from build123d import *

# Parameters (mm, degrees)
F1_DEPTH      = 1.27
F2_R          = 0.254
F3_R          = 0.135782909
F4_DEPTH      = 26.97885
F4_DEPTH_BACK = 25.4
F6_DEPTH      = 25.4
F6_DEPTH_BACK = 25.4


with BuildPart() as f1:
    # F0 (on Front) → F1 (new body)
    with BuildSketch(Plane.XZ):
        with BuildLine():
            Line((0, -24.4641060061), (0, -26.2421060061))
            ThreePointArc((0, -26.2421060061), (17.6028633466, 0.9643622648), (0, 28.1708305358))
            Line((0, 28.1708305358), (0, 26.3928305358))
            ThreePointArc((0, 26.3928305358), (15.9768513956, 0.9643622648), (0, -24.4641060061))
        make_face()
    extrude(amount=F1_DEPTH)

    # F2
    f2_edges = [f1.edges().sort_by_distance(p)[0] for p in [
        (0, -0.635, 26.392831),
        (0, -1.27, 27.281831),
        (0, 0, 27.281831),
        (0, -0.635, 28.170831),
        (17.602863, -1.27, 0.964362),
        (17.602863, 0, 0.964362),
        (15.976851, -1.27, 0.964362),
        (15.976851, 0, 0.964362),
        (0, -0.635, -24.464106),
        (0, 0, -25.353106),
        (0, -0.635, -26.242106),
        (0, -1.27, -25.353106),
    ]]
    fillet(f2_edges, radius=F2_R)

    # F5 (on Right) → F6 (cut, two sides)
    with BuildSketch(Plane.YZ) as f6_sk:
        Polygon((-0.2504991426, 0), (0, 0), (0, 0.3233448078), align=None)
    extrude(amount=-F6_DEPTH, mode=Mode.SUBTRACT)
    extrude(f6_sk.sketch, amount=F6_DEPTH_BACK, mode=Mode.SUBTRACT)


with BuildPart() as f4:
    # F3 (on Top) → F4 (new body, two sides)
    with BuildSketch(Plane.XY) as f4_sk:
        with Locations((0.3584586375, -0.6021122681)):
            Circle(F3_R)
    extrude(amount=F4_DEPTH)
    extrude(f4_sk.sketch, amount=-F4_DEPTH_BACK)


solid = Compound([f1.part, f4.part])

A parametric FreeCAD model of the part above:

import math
import FreeCAD as App
import Part
import Sketcher

V = App.Vector
Q = App.Units.Quantity


def add_polygon(sketch, points):
    """Adds a closed chain of lines whose ends are joined by coincident constraints."""
    first, n = sketch.GeometryCount, len(points)
    for a, b in zip(points, points[1:] + points[:1]):
        sketch.addGeometry(Part.LineSegment(App.Vector(*a, 0), App.Vector(*b, 0)), False)
    for i in range(n):
        sketch.addConstraint(Sketcher.Constraint("Coincident", first + i, 2, first + (i + 1) % n, 1))

doc = App.newDocument("Part")
body = doc.addObject("PartDesign::Body", "Body")

# Sketch on XZ plane
sketch1 = body.newObject("Sketcher::SketchObject", "Sketch")
sketch1.AttachmentSupport = (doc.getObject("XZ_Plane"), [""])
sketch1.MapMode = "FlatFace"
sketch1.addGeometry([
    Part.LineSegment(V(0, -24.5, 0), V(0, -26.2, 0)),
    Part.ArcOfCircle(Part.Circle(V(-12.2, 1, 0), V(0, 0, 1), 29.8), math.radians(-66), math.radians(66)),
    Part.LineSegment(V(0, 28.2, 0), V(0, 26.4, 0)),
    Part.ArcOfCircle(Part.Circle(V(-12.2, 1, 0), V(0, 0, 1), 28.2), math.radians(-64), math.radians(64)),
], False)
sketch1.addConstraint([
    Sketcher.Constraint("Coincident", 0, 2, 1, 1),
    Sketcher.Constraint("Coincident", 1, 2, 2, 1),
    Sketcher.Constraint("Coincident", 2, 2, 3, 2),
    Sketcher.Constraint("Coincident", 3, 1, 0, 1),
    Sketcher.Constraint("Vertical", 0),
    Sketcher.Constraint("Vertical", 2),
    Sketcher.Constraint("PointOnObject", 0, 2, -2),
    Sketcher.Constraint("PointOnObject", 1, 2, -2),
    Sketcher.Constraint("Horizontal", 1, 3, 3, 3),
    Sketcher.Constraint("DistanceY", 0, 2, 0, 1, Q("0.07 in")),
    Sketcher.Constraint("Radius", 1, 29.826191),
    Sketcher.Constraint("Radius", 3, 28.224171),
    Sketcher.Constraint("DistanceX", 3, 3, -1, 1, 12.24732),
    Sketcher.Constraint("DistanceY", -1, 1, 1, 2, 28.170831),
])
pad1 = body.newObject("PartDesign::Pad", "Pad")
pad1.Profile = sketch1
pad1.Length = Q("0.05 in")
doc.recompute()

fillet = body.newObject("PartDesign::Fillet", "Fillet")
fillet.Base = (pad1, ["Edge1"])
fillet.UseAllEdges = True
fillet.Radius = Q("0.01 in")

# Sketch on YZ plane
sketch2 = body.newObject("Sketcher::SketchObject", "Sketch001")
sketch2.AttachmentSupport = (doc.getObject("YZ_Plane"), [""])
sketch2.MapMode = "FlatFace"
add_polygon(sketch2, [(-0.25, 0), (0, 0), (0, 0.32)])  # lines 0-2
sketch2.addConstraint([
    Sketcher.Constraint("Horizontal", 0),
    Sketcher.Constraint("Vertical", 1),
    Sketcher.Constraint("Coincident", 0, 2, -1, 1),
    Sketcher.Constraint("DistanceX", 0, 1, 0, 2, 0.250499),
    Sketcher.Constraint("DistanceY", 1, 1, 1, 2, 0.323345),
])
pocket1 = body.newObject("PartDesign::Pocket", "Pocket")
pocket1.Profile = sketch2
pocket1.Type = "ThroughAll"
pocket1.Midplane = True
body2 = doc.addObject("PartDesign::Body", "Body001")

# Sketch on XY plane
sketch3 = body2.newObject("Sketcher::SketchObject", "Sketch002")
sketch3.AttachmentSupport = (doc.getObject("XY_Plane001"), [""])
sketch3.MapMode = "FlatFace"
sketch3.addGeometry(Part.Circle(V(0.36, -0.6, 0), V(0, 0, 1), 0.14), False)
sketch3.addConstraint([
    Sketcher.Constraint("Diameter", 0, 0.271566),
    Sketcher.Constraint("DistanceX", -1, 1, 0, 3, 0.358459),
    Sketcher.Constraint("DistanceY", 0, 3, -1, 1, 0.602112),
])
pad2 = body2.newObject("PartDesign::Pad", "Pad001")
pad2.Profile = sketch3
pad2.Type = "TwoLengths"
pad2.Length = 26.97885
pad2.Length2 = Q("1 in")

doc.recompute()
